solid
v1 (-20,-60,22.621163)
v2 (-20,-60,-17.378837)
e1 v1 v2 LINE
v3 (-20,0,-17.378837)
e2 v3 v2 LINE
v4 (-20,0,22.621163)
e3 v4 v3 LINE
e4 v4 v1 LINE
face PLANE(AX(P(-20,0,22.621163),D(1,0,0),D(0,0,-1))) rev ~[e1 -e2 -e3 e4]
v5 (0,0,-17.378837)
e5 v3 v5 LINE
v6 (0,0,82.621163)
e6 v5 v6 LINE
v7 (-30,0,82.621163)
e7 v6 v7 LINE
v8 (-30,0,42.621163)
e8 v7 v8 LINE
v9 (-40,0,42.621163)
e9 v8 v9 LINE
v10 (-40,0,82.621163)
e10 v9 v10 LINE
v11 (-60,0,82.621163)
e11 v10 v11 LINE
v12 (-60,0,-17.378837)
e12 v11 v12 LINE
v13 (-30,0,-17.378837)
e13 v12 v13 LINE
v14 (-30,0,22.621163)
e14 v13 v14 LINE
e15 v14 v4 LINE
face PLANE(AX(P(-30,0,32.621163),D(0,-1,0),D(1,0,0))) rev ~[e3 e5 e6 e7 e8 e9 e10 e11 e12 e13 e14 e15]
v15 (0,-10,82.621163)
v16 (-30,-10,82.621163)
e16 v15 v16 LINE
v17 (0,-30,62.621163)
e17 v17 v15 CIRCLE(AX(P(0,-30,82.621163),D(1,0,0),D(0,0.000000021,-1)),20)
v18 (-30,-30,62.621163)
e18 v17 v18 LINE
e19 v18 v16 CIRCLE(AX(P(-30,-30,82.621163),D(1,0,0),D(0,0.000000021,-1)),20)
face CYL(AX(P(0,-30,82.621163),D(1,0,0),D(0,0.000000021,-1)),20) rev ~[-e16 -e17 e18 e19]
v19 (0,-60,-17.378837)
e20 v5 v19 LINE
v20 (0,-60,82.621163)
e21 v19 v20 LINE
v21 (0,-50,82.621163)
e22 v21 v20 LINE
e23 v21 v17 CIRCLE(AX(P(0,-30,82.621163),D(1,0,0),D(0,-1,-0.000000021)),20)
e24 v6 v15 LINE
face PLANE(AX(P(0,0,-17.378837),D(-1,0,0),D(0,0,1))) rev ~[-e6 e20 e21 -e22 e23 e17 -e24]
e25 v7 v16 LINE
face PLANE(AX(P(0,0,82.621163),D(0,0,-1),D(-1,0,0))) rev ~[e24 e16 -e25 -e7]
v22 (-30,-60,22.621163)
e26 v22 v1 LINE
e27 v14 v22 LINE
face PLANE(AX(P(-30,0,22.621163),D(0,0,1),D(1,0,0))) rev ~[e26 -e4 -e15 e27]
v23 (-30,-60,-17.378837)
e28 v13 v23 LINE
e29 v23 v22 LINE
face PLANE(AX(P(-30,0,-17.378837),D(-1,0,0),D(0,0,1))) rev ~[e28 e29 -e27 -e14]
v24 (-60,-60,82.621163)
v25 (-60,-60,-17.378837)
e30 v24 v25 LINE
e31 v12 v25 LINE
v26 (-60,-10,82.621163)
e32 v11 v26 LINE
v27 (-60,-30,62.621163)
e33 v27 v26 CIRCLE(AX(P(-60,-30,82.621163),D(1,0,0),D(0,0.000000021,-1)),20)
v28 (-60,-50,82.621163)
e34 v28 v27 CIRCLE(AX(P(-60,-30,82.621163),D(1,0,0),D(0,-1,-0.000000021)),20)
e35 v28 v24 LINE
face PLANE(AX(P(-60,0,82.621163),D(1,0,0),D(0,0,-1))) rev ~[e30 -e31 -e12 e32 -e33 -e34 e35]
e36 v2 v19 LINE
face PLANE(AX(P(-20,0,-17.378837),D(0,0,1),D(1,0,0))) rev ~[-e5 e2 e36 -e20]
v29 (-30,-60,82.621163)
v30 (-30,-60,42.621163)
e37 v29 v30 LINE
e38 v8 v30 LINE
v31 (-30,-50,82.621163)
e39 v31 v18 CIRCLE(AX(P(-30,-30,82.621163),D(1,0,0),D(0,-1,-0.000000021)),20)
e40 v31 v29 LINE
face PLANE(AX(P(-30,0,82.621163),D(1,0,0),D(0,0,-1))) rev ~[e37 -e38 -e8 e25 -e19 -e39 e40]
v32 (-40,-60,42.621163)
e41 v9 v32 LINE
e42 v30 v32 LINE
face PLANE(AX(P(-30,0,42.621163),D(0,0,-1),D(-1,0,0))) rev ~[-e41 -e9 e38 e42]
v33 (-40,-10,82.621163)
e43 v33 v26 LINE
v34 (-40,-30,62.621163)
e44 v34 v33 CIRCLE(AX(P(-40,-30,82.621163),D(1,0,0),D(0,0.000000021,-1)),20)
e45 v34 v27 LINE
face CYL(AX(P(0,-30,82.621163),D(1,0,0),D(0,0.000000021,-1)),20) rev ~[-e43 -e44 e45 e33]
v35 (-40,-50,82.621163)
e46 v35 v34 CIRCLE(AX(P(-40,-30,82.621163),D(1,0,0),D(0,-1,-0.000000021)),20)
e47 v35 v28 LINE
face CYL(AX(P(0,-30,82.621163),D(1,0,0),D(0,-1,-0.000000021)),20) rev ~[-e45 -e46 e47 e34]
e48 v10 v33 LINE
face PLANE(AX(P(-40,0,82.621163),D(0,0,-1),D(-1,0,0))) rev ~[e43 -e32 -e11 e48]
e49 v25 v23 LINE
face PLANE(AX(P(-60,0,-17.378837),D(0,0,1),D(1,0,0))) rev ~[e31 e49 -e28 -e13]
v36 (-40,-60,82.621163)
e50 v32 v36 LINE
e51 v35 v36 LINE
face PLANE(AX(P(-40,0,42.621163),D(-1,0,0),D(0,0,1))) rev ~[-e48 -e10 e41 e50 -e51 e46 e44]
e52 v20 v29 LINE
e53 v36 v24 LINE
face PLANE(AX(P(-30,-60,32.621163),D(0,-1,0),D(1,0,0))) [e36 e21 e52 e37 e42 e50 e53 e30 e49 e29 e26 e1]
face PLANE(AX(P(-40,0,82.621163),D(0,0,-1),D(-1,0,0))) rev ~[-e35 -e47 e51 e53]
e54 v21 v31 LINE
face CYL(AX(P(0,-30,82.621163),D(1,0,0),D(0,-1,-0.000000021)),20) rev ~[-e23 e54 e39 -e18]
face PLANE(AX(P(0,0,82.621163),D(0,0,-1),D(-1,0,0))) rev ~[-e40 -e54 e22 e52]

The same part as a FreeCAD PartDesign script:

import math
import FreeCAD as App
import Part
import Sketcher
from FreeCAD import Vector

doc = App.newDocument("Part")
body = doc.addObject("PartDesign::Body", "Body")

sketch1 = doc.addObject("Sketcher::SketchObject", "Sketch")
body.addObject(sketch1)
sketch1.AttachmentSupport = (doc.XZ_Plane, [""])
sketch1.MapMode = "FlatFace"
sketch1.addGeometry(Part.LineSegment(Vector(-40, 83, 0), Vector(-60, 83, 0)), False)
sketch1.addGeometry(Part.LineSegment(Vector(-60, 83, 0), Vector(-60, -17, 0)), False)
sketch1.addGeometry(Part.LineSegment(Vector(-60, -17, 0), Vector(-30, -17, 0)), False)
sketch1.addGeometry(Part.LineSegment(Vector(-30, -17, 0), Vector(-30, 23, 0)), False)
sketch1.addGeometry(Part.LineSegment(Vector(-30, 23, 0), Vector(-20, 23, 0)), False)
sketch1.addGeometry(Part.LineSegment(Vector(-20, 23, 0), Vector(-20, -17, 0)), False)
sketch1.addGeometry(Part.LineSegment(Vector(-20, -17, 0), Vector(0, -17, 0)), False)
sketch1.addGeometry(Part.LineSegment(Vector(0, -17, 0), Vector(0, 83, 0)), False)
sketch1.addGeometry(Part.LineSegment(Vector(0, 83, 0), Vector(-30, 83, 0)), False)
sketch1.addGeometry(Part.LineSegment(Vector(-30, 83, 0), Vector(-30, 43, 0)), False)
sketch1.addGeometry(Part.LineSegment(Vector(-30, 43, 0), Vector(-40, 43, 0)), False)
sketch1.addGeometry(Part.LineSegment(Vector(-40, 43, 0), Vector(-40, 83, 0)), False)
sketch1.addConstraint(Sketcher.Constraint("Coincident", 0, 2, 1, 1))
sketch1.addConstraint(Sketcher.Constraint("Coincident", 1, 2, 2, 1))
sketch1.addConstraint(Sketcher.Constraint("Coincident", 2, 2, 3, 1))
sketch1.addConstraint(Sketcher.Constraint("Coincident", 3, 2, 4, 1))
sketch1.addConstraint(Sketcher.Constraint("Coincident", 4, 2, 5, 1))
sketch1.addConstraint(Sketcher.Constraint("Coincident", 5, 2, 6, 1))
sketch1.addConstraint(Sketcher.Constraint("Coincident", 6, 2, 7, 1))
sketch1.addConstraint(Sketcher.Constraint("Coincident", 7, 2, 8, 1))
sketch1.addConstraint(Sketcher.Constraint("Coincident", 8, 2, 9, 1))
sketch1.addConstraint(Sketcher.Constraint("Coincident", 9, 2, 10, 1))
sketch1.addConstraint(Sketcher.Constraint("Coincident", 10, 2, 11, 1))
sketch1.addConstraint(Sketcher.Constraint("Coincident", 11, 2, 0, 1))
sketch1.addConstraint(Sketcher.Constraint("Horizontal", 0))
sketch1.addConstraint(Sketcher.Constraint("Vertical", 1))
sketch1.addConstraint(Sketcher.Constraint("Horizontal", 2))
sketch1.addConstraint(Sketcher.Constraint("Vertical", 3))
sketch1.addConstraint(Sketcher.Constraint("Horizontal", 4))
sketch1.addConstraint(Sketcher.Constraint("Vertical", 5))
sketch1.addConstraint(Sketcher.Constraint("Horizontal", 6))
sketch1.addConstraint(Sketcher.Constraint("Vertical", 7))
sketch1.addConstraint(Sketcher.Constraint("Horizontal", 8))
sketch1.addConstraint(Sketcher.Constraint("Vertical", 9))
sketch1.addConstraint(Sketcher.Constraint("Horizontal", 10))
sketch1.addConstraint(Sketcher.Constraint("Vertical", 11))
sketch1.addConstraint(Sketcher.Constraint("PointOnObject", 6, 2, -2))
sketch1.addConstraint(Sketcher.Constraint("Horizontal", 2, 2, 5, 2))
sketch1.addConstraint(Sketcher.Constraint("Horizontal", 0, 2, 7, 2))
sketch1.addConstraint(Sketcher.Constraint("Vertical", 3, 2, 8, 2))
sketch1.addConstraint(Sketcher.Constraint("Equal", 0, 6))
sketch1.addConstraint(Sketcher.Constraint("Equal", 2, 8))
sketch1.addConstraint(Sketcher.Constraint("Equal", 5, 9))
sketch1.addConstraint(Sketcher.Constraint("DistanceX", 0, 2, 0, 1, 20.0))
sketch1.addConstraint(Sketcher.Constraint("DistanceX", 2, 1, 2, 2, 30.0))
sketch1.addConstraint(Sketcher.Constraint("DistanceY", 1, 2, 1, 1, 100.0))
sketch1.addConstraint(Sketcher.Constraint("DistanceY", 3, 1, 3, 2, 40.0))
sketch1.addConstraint(Sketcher.Constraint("DistanceY", -1, 1, 0, 2, 82.621163))
pad1 = doc.addObject("PartDesign::Pad", "Pad")
body.addObject(pad1)
pad1.Profile = sketch1
pad1.Length = 60

sketch2 = doc.addObject("Sketcher::SketchObject", "Sketch001")
body.addObject(sketch2)
sketch2.AttachmentSupport = (doc.YZ_Plane, [""])
sketch2.MapMode = "FlatFace"
sketch2.addGeometry(Part.LineSegment(Vector(-10, 83, 0), Vector(-50, 83, 0)), False)
sketch2.addGeometry(Part.ArcOfCircle(Part.Circle(Vector(-30, 83, 0), Vector(0, 0, 1), 20), math.radians(-180), math.radians(-90)), False)
sketch2.addGeometry(Part.ArcOfCircle(Part.Circle(Vector(-30, 83, 0), Vector(0, 0, 1), 20), math.radians(-90), math.radians(0)), False)
sketch2.addConstraint(Sketcher.Constraint("Coincident", 0, 2, 1, 1))
sketch2.addConstraint(Sketcher.Constraint("Tangent", 1, 2, 2, 1))
sketch2.addConstraint(Sketcher.Constraint("Coincident", 2, 2, 0, 1))
sketch2.addConstraint(Sketcher.Constraint("Horizontal", 0))
sketch2.addConstraint(Sketcher.Constraint("Equal", 1, 2))
sketch2.addConstraint(Sketcher.Constraint("Horizontal", 2, 3, 0, 2))
sketch2.addConstraint(Sketcher.Constraint("Vertical", 2, 3, 1, 2))
sketch2.addConstraint(Sketcher.Constraint("Radius", 1, 20.0))
sketch2.addConstraint(Sketcher.Constraint("DistanceX", 1, 3, -1, 1, 30.0))
sketch2.addConstraint(Sketcher.Constraint("DistanceY", -1, 1, 1, 3, 82.621163))
pocket1 = doc.addObject("PartDesign::Pocket", "Pocket")
body.addObject(pocket1)
pocket1.Profile = sketch2
pocket1.Length = 60

doc.recompute()
